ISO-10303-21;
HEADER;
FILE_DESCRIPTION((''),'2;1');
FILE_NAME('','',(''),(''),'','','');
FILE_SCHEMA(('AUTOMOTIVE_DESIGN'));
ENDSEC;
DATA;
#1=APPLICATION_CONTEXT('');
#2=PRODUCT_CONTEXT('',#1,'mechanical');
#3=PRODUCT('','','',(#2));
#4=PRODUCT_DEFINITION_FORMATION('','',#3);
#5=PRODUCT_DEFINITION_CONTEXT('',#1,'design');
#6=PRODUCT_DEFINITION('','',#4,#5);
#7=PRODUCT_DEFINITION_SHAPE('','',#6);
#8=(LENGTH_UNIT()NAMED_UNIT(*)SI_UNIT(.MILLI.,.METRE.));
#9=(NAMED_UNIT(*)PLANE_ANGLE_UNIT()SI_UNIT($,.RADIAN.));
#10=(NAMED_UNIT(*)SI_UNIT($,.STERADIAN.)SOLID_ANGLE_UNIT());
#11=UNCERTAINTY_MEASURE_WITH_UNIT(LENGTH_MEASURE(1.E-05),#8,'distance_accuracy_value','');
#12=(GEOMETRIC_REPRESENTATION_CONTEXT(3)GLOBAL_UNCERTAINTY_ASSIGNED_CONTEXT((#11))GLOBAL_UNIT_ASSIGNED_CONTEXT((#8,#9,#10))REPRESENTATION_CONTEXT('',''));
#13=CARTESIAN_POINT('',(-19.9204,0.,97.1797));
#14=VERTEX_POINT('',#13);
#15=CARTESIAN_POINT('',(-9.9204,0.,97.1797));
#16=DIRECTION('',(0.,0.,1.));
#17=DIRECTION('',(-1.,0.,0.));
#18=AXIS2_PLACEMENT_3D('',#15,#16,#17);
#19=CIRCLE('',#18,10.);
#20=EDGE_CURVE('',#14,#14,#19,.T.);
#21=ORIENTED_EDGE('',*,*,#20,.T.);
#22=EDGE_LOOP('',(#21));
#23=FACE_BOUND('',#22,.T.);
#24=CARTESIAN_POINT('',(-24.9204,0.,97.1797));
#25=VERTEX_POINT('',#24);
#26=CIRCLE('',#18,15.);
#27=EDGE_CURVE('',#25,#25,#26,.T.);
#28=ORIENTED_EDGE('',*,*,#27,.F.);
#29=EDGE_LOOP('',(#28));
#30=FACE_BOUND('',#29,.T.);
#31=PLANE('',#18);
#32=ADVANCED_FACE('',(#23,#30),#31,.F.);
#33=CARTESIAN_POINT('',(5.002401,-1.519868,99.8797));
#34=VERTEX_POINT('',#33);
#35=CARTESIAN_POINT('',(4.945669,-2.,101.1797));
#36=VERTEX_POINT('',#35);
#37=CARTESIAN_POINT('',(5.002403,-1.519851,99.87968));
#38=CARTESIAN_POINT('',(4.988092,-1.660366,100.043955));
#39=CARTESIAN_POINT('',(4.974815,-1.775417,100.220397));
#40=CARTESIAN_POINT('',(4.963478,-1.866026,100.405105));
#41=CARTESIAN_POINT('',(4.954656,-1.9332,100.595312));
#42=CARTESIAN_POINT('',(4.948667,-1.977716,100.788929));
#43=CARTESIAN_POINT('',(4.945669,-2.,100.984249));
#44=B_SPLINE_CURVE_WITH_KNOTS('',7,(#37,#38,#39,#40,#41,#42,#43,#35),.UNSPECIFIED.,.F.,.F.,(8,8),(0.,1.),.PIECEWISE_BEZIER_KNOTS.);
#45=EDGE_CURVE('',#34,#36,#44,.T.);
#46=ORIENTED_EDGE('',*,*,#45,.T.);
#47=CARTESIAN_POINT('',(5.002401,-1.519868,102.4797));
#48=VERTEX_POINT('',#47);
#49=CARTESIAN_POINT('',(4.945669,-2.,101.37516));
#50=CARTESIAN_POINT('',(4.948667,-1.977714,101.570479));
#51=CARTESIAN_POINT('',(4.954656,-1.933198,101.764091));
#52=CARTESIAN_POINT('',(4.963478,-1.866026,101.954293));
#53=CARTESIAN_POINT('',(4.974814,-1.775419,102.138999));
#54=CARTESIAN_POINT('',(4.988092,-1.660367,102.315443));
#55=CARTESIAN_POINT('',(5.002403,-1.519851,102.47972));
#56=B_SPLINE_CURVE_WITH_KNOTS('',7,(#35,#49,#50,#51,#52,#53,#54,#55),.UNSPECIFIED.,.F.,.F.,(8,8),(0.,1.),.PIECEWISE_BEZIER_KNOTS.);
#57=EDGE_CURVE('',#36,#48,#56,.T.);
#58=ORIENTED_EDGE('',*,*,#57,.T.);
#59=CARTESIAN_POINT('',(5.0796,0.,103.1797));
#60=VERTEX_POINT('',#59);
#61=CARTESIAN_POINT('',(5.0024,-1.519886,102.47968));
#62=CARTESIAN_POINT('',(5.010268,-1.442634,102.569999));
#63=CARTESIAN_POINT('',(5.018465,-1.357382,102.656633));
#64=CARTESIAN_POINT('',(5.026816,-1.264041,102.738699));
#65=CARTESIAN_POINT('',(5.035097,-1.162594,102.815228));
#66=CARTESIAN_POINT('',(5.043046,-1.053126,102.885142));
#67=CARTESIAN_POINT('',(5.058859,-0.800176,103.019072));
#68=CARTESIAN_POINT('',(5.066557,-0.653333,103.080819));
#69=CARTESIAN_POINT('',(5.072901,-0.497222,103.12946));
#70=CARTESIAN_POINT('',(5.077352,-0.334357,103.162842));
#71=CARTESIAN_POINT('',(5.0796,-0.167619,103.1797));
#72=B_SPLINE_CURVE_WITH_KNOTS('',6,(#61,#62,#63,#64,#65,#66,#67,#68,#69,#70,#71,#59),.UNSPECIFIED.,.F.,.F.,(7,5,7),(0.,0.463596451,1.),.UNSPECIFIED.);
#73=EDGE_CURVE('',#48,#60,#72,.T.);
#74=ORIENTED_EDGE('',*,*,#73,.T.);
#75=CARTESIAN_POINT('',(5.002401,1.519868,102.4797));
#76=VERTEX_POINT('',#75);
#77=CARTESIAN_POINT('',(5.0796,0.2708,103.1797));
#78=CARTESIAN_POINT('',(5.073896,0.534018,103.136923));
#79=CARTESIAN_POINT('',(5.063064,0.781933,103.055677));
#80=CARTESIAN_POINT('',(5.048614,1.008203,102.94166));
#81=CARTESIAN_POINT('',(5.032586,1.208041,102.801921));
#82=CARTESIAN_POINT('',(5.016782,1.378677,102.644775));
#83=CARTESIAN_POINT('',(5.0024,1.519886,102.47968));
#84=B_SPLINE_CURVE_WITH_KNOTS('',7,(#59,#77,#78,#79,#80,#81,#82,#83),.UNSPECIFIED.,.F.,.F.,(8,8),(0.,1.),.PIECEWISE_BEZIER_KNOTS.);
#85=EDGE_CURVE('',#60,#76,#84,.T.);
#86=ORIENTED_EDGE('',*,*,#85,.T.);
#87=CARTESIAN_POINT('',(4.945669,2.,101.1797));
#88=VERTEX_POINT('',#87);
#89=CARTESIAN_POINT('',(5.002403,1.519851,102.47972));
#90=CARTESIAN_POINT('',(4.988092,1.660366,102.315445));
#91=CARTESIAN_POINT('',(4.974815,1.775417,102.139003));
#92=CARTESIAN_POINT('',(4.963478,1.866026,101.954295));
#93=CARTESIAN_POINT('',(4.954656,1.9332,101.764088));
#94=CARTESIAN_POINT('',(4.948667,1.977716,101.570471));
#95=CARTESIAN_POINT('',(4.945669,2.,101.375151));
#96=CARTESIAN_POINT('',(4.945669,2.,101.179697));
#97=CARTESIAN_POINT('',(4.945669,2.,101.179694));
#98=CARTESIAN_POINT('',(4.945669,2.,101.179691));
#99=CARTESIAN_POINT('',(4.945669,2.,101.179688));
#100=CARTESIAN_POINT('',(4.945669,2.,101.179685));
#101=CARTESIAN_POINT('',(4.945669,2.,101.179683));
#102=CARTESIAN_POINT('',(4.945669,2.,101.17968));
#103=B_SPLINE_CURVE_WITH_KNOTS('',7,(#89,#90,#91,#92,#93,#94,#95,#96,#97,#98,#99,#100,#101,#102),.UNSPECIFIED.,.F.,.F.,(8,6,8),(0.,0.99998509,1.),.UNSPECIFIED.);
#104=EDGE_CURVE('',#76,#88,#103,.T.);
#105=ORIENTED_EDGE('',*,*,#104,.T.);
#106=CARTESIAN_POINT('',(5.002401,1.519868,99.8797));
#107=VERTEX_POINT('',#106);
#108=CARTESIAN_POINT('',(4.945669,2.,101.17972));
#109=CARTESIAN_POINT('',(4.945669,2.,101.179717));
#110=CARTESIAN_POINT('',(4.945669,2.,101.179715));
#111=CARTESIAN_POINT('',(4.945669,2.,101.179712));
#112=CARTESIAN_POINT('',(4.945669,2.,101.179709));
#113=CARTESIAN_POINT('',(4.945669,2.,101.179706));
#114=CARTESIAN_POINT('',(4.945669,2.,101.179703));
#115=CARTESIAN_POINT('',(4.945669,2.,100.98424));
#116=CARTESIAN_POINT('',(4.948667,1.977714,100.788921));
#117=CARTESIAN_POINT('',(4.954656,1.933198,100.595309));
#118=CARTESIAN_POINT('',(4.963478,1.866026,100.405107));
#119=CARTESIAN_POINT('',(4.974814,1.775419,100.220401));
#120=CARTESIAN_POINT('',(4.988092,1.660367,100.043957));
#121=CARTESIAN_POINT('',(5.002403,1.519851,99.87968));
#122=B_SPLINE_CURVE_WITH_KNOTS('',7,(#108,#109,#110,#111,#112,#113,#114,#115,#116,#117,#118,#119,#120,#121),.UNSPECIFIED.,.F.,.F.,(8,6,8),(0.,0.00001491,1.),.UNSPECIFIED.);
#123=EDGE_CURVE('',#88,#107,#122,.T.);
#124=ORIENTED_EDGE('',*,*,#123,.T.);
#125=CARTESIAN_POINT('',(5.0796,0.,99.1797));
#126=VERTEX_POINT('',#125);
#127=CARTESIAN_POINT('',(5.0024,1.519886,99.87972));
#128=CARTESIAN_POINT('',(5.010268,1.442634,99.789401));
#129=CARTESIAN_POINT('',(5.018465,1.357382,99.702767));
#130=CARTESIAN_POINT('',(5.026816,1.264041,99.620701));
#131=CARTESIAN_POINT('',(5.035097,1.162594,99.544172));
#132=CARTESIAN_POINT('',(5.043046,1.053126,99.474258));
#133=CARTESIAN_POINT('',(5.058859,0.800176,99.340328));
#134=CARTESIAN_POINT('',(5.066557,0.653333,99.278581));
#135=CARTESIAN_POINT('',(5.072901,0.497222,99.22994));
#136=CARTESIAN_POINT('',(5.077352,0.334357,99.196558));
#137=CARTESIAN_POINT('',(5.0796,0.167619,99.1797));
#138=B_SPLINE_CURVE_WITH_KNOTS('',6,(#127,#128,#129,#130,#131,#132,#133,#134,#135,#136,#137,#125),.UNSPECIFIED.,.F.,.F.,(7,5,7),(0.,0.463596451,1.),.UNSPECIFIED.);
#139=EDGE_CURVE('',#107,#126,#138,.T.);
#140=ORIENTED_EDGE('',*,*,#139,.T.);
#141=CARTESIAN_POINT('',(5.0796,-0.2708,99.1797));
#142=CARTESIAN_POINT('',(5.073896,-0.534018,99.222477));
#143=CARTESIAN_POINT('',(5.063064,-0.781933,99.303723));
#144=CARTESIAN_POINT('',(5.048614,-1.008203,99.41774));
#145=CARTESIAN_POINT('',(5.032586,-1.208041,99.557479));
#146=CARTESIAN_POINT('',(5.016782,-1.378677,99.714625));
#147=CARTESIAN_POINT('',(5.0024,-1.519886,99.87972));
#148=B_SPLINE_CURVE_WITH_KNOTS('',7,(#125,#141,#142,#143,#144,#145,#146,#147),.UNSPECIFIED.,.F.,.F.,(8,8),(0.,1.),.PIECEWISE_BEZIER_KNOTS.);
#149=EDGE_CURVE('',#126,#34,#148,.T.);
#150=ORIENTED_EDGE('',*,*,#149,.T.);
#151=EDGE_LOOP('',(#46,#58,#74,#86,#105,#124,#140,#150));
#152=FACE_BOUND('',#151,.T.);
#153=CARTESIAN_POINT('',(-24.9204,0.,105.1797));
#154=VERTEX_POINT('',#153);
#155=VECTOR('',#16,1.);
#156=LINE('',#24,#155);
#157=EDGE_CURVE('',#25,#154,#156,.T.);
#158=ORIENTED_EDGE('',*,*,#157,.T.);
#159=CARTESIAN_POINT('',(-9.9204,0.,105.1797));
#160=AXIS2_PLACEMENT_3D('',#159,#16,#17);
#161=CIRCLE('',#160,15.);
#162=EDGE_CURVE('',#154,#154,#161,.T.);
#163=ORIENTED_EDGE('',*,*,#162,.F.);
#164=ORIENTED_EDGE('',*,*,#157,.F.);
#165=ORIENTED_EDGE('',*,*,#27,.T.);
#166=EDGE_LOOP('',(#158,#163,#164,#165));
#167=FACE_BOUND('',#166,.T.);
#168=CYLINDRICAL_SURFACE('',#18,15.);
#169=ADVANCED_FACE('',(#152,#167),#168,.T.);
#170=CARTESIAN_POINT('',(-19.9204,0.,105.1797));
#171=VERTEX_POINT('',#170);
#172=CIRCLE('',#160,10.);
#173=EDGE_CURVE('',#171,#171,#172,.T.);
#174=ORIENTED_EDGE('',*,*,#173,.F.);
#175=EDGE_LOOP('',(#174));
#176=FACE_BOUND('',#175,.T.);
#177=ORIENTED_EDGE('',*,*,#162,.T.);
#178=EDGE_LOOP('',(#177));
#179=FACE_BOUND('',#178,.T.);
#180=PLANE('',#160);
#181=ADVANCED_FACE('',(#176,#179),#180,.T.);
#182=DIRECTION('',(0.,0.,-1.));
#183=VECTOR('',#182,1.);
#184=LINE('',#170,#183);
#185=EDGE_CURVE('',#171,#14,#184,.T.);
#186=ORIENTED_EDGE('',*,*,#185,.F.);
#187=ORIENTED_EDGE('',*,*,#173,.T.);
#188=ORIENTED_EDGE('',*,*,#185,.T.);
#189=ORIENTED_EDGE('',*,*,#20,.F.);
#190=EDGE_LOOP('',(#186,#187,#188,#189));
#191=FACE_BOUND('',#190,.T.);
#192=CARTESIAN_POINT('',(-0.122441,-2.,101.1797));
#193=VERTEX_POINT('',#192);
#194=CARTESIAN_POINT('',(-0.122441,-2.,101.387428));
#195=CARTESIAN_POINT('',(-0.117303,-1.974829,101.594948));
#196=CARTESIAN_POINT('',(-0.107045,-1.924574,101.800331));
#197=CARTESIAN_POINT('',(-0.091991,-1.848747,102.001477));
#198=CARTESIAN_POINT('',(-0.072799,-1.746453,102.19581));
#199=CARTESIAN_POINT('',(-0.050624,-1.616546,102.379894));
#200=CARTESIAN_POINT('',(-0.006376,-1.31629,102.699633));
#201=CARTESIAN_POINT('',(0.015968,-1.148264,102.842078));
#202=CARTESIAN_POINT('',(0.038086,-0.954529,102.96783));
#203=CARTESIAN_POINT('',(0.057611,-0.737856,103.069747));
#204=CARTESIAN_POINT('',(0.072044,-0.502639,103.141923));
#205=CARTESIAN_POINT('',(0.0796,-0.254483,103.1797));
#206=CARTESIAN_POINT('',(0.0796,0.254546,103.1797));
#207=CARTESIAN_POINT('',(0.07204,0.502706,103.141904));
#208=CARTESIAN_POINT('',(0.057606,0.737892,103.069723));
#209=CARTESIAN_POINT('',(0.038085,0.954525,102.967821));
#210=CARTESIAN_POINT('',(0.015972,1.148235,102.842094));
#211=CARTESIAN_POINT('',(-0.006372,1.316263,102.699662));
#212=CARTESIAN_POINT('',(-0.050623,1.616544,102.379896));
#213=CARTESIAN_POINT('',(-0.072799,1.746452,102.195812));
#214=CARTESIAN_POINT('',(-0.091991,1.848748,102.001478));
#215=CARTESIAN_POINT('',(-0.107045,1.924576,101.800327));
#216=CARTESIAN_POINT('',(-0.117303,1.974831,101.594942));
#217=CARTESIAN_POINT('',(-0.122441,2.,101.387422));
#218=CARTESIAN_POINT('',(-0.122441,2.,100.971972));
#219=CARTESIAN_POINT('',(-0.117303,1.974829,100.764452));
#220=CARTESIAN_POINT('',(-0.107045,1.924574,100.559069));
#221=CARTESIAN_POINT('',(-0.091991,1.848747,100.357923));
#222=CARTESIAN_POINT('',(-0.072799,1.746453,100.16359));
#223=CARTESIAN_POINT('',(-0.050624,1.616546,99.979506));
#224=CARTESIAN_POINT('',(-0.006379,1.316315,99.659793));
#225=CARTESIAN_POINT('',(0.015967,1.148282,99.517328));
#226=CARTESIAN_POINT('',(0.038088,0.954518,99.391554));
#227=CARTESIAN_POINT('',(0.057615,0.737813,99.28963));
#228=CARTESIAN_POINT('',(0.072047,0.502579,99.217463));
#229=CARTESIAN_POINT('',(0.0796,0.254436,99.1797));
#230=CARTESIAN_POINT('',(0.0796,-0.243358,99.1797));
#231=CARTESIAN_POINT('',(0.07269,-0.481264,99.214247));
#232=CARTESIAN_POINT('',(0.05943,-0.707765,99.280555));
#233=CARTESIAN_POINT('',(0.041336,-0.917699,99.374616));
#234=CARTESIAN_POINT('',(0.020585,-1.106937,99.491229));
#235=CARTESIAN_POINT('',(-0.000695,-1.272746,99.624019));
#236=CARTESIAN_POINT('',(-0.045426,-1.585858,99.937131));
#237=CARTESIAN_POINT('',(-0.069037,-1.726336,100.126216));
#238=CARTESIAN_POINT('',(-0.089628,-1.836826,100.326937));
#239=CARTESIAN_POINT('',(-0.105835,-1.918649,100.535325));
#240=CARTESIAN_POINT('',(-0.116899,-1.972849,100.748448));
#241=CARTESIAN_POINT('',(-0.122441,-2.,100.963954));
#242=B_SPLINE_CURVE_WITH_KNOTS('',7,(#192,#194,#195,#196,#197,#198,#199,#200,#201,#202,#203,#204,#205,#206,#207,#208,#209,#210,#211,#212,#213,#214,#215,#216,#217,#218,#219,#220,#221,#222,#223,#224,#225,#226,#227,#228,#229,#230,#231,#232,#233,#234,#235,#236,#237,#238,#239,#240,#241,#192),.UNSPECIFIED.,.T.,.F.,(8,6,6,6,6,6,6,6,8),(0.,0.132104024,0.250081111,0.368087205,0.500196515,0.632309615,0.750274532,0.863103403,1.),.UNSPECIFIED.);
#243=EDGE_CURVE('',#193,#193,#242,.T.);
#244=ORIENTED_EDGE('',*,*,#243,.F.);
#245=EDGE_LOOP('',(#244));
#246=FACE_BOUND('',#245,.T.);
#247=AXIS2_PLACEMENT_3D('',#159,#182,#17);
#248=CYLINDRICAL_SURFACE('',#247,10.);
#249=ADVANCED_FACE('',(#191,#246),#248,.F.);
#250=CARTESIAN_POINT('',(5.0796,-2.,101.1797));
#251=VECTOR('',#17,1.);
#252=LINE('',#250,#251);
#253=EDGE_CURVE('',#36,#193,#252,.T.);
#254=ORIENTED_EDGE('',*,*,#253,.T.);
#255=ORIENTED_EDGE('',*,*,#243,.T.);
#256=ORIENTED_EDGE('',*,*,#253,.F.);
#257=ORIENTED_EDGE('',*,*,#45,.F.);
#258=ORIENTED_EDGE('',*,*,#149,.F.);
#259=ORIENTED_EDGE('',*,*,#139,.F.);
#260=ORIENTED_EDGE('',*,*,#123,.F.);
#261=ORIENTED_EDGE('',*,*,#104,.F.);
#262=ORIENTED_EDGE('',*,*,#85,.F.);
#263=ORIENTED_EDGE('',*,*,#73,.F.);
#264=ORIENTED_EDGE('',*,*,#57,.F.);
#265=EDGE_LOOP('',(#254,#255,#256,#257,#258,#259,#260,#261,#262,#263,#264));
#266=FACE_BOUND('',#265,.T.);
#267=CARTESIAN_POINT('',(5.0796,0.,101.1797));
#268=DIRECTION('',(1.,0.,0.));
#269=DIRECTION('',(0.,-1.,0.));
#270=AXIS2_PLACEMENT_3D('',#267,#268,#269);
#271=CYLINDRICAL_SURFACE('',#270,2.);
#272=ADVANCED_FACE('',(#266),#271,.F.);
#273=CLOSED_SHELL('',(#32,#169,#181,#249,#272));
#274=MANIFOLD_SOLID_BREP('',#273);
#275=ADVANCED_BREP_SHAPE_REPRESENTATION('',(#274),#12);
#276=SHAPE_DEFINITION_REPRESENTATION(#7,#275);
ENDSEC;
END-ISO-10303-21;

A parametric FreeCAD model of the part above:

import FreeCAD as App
import Part
import Sketcher

V = App.Vector

doc = App.newDocument("Part")
body = doc.addObject("PartDesign::Body", "Body")

# Sketch on XZ plane
sketch1 = body.newObject("Sketcher::SketchObject", "Sketch")
sketch1.AttachmentSupport = (doc.getObject("XZ_Plane"), [""])
sketch1.MapMode = "FlatFace"
sketch1.addGeometry([
    Part.LineSegment(V(-20, 105, 0), V(-20, 97, 0)),
    Part.LineSegment(V(-20, 97, 0), V(-25, 97, 0)),
    Part.LineSegment(V(-25, 97, 0), V(-25, 105, 0)),
    Part.LineSegment(V(-25, 105, 0), V(-20, 105, 0)),
], False)
sketch1.addGeometry(Part.LineSegment(V(-10, 97, 0), V(-10, 105, 0)), True)  # axis
sketch1.addConstraint([
    Sketcher.Constraint("Coincident", 0, 2, 1, 1),
    Sketcher.Constraint("Coincident", 1, 2, 2, 1),
    Sketcher.Constraint("Coincident", 2, 2, 3, 1),
    Sketcher.Constraint("Coincident", 3, 2, 0, 1),
    Sketcher.Constraint("Vertical", 0),
    Sketcher.Constraint("Horizontal", 1),
    Sketcher.Constraint("Vertical", 2),
    Sketcher.Constraint("Horizontal", 3),
    Sketcher.Constraint("Vertical", 4),
    Sketcher.Constraint("Horizontal", 1, 2, 4, 1),
    Sketcher.Constraint("Horizontal", 3, 2, 4, 2),
    Sketcher.Constraint("DistanceX", 1, 2, 1, 1, 5.0),
    Sketcher.Constraint("DistanceY", 0, 2, 0, 1, 8.0),
    Sketcher.Constraint("DistanceX", 0, 2, 4, 1, 10.0),
    Sketcher.Constraint("DistanceX", 0, 2, -1, 1, 19.9204),
    Sketcher.Constraint("DistanceY", -1, 1, 0, 2, 97.1797),
])
revolution = body.newObject("PartDesign::Revolution", "Revolution")
revolution.Profile = sketch1
revolution.ReferenceAxis = (sketch1, ["Axis0"])
revolution.Angle = 360

# Sketch on YZ plane
sketch2 = body.newObject("Sketcher::SketchObject", "Sketch001")
sketch2.AttachmentSupport = (doc.getObject("YZ_Plane"), [""])
sketch2.MapMode = "FlatFace"
sketch2.AttachmentOffset = App.Placement(V(0, 0, 5.0796), App.Rotation())
sketch2.addGeometry(Part.Circle(V(0, 101.2, 0), V(0, 0, 1), 2), False)
sketch2.addConstraint([
    Sketcher.Constraint("PointOnObject", 0, 3, -2),
    Sketcher.Constraint("Diameter", 0, 4.0),
    Sketcher.Constraint("DistanceY", -1, 1, 0, 3, 101.1797),
])
pocket1 = body.newObject("PartDesign::Pocket", "Pocket")
pocket1.Profile = sketch2
pocket1.Length = 10

doc.recompute()
